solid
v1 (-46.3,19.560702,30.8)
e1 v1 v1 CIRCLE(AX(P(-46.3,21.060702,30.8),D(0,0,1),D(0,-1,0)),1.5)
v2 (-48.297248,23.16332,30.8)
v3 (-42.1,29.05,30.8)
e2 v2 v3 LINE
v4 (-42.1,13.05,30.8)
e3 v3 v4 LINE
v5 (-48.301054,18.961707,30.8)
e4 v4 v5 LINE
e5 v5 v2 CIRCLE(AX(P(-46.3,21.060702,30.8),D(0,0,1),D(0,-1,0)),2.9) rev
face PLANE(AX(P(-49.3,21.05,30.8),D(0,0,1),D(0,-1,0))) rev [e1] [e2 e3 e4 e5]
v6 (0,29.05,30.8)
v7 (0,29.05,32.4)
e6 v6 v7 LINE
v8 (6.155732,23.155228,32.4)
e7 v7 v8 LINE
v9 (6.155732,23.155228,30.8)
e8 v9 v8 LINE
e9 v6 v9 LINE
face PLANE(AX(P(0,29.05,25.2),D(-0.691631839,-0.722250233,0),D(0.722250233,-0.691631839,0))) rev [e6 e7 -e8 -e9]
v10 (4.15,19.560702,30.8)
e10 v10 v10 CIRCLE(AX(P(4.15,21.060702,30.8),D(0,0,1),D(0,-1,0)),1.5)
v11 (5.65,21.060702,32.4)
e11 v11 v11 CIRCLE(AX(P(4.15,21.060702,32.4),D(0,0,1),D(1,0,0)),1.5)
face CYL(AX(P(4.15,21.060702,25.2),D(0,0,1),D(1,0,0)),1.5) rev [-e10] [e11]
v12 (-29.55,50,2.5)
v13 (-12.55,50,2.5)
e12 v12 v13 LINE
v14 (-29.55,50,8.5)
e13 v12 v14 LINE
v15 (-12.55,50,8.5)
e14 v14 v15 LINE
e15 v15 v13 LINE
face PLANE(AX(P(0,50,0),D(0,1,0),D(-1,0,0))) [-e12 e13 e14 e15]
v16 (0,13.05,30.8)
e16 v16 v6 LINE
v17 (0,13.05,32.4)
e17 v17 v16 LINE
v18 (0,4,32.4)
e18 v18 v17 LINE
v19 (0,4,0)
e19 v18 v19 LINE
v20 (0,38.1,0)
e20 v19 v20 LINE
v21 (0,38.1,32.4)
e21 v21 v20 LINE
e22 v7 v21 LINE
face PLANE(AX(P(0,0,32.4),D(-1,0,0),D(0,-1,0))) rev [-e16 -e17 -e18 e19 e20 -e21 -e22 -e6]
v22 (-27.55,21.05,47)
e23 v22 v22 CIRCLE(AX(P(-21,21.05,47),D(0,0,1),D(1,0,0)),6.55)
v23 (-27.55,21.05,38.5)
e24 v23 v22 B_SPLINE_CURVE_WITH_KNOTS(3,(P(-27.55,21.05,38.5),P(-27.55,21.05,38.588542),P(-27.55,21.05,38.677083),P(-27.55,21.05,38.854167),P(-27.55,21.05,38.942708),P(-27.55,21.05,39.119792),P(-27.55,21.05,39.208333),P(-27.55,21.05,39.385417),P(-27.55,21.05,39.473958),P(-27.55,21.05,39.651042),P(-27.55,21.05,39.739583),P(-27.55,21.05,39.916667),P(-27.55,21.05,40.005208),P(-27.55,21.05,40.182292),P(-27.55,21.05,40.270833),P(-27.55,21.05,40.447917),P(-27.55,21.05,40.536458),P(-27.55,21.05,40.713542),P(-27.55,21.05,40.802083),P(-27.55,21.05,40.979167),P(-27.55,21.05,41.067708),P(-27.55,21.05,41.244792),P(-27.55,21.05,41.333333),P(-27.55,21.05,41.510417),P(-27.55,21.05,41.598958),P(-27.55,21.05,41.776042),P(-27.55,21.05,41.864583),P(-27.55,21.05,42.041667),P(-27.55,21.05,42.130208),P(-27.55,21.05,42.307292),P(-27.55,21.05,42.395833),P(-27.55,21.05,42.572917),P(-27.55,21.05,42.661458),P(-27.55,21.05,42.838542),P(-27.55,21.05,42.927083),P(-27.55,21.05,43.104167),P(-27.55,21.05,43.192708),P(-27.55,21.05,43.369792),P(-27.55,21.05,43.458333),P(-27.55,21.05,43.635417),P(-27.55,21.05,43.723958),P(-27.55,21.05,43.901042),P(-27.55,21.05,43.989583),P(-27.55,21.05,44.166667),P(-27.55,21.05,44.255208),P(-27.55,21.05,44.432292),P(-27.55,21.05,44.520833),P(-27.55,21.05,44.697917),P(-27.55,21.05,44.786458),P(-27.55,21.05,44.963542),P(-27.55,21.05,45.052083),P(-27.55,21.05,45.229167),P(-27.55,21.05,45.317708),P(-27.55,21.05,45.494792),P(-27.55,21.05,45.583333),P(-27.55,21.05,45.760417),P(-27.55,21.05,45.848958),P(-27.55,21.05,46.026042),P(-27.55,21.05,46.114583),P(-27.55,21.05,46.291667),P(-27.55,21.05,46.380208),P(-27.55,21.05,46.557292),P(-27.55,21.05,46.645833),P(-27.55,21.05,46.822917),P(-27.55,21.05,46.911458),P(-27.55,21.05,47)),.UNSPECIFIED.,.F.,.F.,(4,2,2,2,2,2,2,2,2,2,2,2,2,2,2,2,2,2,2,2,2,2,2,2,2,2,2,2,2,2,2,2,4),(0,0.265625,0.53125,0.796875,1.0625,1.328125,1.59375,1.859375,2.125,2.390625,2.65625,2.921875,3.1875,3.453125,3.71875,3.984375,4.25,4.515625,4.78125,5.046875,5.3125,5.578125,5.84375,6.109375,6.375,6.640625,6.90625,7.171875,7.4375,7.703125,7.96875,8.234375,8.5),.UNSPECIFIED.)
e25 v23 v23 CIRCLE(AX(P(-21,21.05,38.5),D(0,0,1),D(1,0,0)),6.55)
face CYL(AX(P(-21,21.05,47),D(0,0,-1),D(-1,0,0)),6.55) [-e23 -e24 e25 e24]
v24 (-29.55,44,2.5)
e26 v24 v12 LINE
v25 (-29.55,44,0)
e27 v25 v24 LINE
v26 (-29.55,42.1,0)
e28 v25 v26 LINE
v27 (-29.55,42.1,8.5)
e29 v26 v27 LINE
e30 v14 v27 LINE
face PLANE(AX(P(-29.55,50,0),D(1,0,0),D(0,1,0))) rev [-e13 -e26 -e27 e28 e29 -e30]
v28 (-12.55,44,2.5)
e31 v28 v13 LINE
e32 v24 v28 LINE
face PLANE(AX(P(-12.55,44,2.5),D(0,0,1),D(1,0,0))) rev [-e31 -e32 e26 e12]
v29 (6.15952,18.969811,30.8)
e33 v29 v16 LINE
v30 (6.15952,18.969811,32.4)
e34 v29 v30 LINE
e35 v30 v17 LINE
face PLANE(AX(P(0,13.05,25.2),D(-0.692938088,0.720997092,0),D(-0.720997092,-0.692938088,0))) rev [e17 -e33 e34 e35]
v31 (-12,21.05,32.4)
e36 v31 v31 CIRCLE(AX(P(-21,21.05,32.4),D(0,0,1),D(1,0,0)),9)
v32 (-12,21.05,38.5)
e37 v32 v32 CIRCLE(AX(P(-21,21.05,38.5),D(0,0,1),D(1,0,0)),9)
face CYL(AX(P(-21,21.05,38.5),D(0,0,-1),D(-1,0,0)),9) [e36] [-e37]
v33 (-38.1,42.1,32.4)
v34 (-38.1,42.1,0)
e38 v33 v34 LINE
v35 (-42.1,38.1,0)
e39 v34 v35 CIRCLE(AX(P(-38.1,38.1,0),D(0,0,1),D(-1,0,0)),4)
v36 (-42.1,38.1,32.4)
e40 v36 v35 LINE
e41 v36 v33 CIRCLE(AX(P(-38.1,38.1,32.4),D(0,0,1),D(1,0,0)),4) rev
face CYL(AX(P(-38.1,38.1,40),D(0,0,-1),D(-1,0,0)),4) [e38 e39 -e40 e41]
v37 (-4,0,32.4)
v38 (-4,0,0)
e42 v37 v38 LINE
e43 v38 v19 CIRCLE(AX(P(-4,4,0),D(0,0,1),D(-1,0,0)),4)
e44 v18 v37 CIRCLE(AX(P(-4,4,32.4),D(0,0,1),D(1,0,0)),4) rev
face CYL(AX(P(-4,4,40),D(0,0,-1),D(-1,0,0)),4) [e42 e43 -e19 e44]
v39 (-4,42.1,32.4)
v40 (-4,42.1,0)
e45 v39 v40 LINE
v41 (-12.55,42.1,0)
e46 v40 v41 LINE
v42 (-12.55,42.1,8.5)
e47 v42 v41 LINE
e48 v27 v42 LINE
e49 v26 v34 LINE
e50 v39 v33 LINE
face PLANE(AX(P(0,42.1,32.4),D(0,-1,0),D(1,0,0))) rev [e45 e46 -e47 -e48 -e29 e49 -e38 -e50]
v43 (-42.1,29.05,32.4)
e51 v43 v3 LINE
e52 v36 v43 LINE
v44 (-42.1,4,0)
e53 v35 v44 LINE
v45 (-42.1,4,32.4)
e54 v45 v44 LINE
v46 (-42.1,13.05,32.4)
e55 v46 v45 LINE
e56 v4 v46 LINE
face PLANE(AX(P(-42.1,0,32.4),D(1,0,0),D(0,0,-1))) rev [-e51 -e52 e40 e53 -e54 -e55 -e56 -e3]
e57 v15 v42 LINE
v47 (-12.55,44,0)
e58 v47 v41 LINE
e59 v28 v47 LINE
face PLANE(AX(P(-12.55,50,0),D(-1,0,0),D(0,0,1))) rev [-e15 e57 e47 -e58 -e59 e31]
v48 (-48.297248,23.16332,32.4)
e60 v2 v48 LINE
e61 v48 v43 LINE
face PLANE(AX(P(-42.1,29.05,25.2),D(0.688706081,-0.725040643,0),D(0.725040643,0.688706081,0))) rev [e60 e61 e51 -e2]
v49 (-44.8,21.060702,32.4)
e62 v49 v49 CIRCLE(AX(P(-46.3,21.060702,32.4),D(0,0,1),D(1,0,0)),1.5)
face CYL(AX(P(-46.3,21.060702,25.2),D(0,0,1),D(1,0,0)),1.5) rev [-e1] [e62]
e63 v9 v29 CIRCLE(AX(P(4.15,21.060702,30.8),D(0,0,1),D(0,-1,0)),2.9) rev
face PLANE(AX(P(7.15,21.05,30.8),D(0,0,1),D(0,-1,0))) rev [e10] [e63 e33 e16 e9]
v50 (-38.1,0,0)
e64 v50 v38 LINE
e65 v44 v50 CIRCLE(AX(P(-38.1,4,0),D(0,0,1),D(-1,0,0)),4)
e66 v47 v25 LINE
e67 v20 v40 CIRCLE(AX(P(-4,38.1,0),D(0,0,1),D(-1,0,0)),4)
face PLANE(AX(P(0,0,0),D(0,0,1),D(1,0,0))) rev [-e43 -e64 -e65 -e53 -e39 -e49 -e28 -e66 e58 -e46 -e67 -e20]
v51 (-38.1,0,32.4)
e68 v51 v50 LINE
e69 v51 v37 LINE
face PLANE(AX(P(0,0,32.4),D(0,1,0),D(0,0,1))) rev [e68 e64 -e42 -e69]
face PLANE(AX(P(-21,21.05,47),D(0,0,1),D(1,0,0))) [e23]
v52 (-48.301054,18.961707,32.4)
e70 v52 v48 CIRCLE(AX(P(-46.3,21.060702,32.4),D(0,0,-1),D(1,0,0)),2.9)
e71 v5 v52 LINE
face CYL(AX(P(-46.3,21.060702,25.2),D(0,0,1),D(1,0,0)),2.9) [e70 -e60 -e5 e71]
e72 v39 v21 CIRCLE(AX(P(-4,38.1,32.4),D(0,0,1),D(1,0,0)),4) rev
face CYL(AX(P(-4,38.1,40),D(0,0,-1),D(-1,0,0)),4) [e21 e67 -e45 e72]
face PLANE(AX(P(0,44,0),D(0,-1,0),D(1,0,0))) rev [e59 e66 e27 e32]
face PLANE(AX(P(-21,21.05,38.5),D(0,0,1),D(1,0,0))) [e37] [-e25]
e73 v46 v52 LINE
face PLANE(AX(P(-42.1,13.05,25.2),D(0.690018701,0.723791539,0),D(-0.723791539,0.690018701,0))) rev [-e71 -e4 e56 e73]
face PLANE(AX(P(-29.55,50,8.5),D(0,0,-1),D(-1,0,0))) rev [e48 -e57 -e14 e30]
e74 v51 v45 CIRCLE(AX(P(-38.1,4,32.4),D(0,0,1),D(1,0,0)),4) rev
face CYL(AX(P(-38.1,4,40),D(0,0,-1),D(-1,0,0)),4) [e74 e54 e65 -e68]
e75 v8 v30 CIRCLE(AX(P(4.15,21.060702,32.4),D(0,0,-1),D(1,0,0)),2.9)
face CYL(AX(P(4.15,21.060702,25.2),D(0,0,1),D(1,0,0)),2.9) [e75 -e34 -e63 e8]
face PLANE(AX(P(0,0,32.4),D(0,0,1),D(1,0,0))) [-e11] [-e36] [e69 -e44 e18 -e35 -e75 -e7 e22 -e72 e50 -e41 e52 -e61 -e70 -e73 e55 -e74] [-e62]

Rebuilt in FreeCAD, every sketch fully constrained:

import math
import FreeCAD as App
import Part
import Sketcher

doc = App.newDocument("Part")
body = doc.addObject("PartDesign::Body", "Body")

# Sketch on XY plane
sketch1 = body.newObject("Sketcher::SketchObject", "Sketch")
sketch1.AttachmentSupport = (doc.getObject("XY_Plane"), [""])
sketch1.MapMode = "FlatFace"
sketch1.addGeometry([
    Part.LineSegment(App.Vector(-42.1, 42.1, 0), App.Vector(-42.1, 0, 0)),
    Part.LineSegment(App.Vector(-42.1, 0, 0), App.Vector(0, 0, 0)),
    Part.LineSegment(App.Vector(0, 0, 0), App.Vector(0, 42.1, 0)),
    Part.LineSegment(App.Vector(0, 42.1, 0), App.Vector(-42.1, 42.1, 0)),
], False)
sketch1.addConstraint([
    Sketcher.Constraint("Coincident", 0, 2, 1, 1),
    Sketcher.Constraint("Coincident", 1, 2, 2, 1),
    Sketcher.Constraint("Coincident", 2, 2, 3, 1),
    Sketcher.Constraint("Coincident", 3, 2, 0, 1),
    Sketcher.Constraint("Vertical", 0),
    Sketcher.Constraint("Horizontal", 1),
    Sketcher.Constraint("Vertical", 2),
    Sketcher.Constraint("Horizontal", 3),
    Sketcher.Constraint("Coincident", 1, 2, -1, 1),
    Sketcher.Constraint("Equal", 3, 0),
    Sketcher.Constraint("DistanceX", 1, 1, 1, 2, 42.1),
])
pad1 = body.newObject("PartDesign::Pad", "Pad")
pad1.Profile = sketch1
pad1.Length = 32.4

# Sketch on XZ plane
sketch2 = body.newObject("Sketcher::SketchObject", "Sketch001")
sketch2.AttachmentSupport = (doc.getObject("XZ_Plane"), [""])
sketch2.MapMode = "FlatFace"
sketch2.AttachmentOffset = App.Placement(App.Vector(0, 0, -42.1), App.Rotation())
sketch2.addGeometry([
    Part.LineSegment(App.Vector(-29.55, 0, 0), App.Vector(-29.55, 8.5, 0)),
    Part.LineSegment(App.Vector(-29.55, 8.5, 0), App.Vector(-12.55, 8.5, 0)),
    Part.LineSegment(App.Vector(-12.55, 8.5, 0), App.Vector(-12.55, 0, 0)),
    Part.LineSegment(App.Vector(-12.55, 0, 0), App.Vector(-29.55, 0, 0)),
], False)
sketch2.addConstraint([
    Sketcher.Constraint("Coincident", 0, 2, 1, 1),
    Sketcher.Constraint("Coincident", 1, 2, 2, 1),
    Sketcher.Constraint("Coincident", 2, 2, 3, 1),
    Sketcher.Constraint("Coincident", 3, 2, 0, 1),
    Sketcher.Constraint("Vertical", 0),
    Sketcher.Constraint("Horizontal", 1),
    Sketcher.Constraint("Vertical", 2),
    Sketcher.Constraint("Horizontal", 3),
    Sketcher.Constraint("PointOnObject", 2, 2, -1),
    Sketcher.Constraint("DistanceX", 1, 1, 1, 2, 17.0),
    Sketcher.Constraint("DistanceY", 0, 1, 0, 2, 8.5),
    Sketcher.Constraint("DistanceX", 0, 2, -1, 1, 29.55),
])
pad2 = body.newObject("PartDesign::Pad", "Pad001")
pad2.Profile = sketch2
pad2.Length = 7.9
pad2.Reversed = True

# Sketch on YZ plane
sketch3 = body.newObject("Sketcher::SketchObject", "Sketch002")
sketch3.AttachmentSupport = (doc.getObject("YZ_Plane"), [""])
sketch3.MapMode = "FlatFace"
sketch3.addGeometry([
    Part.LineSegment(App.Vector(29.05, 32.4, 0), App.Vector(13.05, 32.4, 0)),
    Part.LineSegment(App.Vector(13.05, 32.4, 0), App.Vector(13.05, 30.8, 0)),
    Part.LineSegment(App.Vector(13.05, 30.8, 0), App.Vector(29.05, 30.8, 0)),
    Part.LineSegment(App.Vector(29.05, 30.8, 0), App.Vector(29.05, 32.4, 0)),
], False)
sketch3.addConstraint([
    Sketcher.Constraint("Coincident", 0, 2, 1, 1),
    Sketcher.Constraint("Coincident", 1, 2, 2, 1),
    Sketcher.Constraint("Coincident", 2, 2, 3, 1),
    Sketcher.Constraint("Coincident", 3, 2, 0, 1),
    Sketcher.Constraint("Horizontal", 0),
    Sketcher.Constraint("Vertical", 1),
    Sketcher.Constraint("Horizontal", 2),
    Sketcher.Constraint("Vertical", 3),
    Sketcher.Constraint("DistanceX", 0, 2, 0, 1, 16.0),
    Sketcher.Constraint("DistanceY", 1, 2, 1, 1, 1.6),
    Sketcher.Constraint("DistanceY", -1, 1, 0, 2, 32.4),
    Sketcher.Constraint("DistanceX", -1, 1, 0, 2, 13.05),
])
pad3 = body.newObject("PartDesign::Pad", "Pad002")
pad3.Profile = sketch3
pad3.Length = 7.15

# Sketch on YZ plane
sketch4 = body.newObject("Sketcher::SketchObject", "Sketch003")
sketch4.AttachmentSupport = (doc.getObject("YZ_Plane"), [""])
sketch4.MapMode = "FlatFace"
sketch4.AttachmentOffset = App.Placement(App.Vector(0, 0, -42.1), App.Rotation())
sketch4.addGeometry([
    Part.LineSegment(App.Vector(29.05, 32.4, 0), App.Vector(29.05, 30.8, 0)),
    Part.LineSegment(App.Vector(29.05, 30.8, 0), App.Vector(13.05, 30.8, 0)),
    Part.LineSegment(App.Vector(13.05, 30.8, 0), App.Vector(13.05, 32.4, 0)),
    Part.LineSegment(App.Vector(13.05, 32.4, 0), App.Vector(29.05, 32.4, 0)),
], False)
sketch4.addConstraint([
    Sketcher.Constraint("Coincident", 0, 2, 1, 1),
    Sketcher.Constraint("Coincident", 1, 2, 2, 1),
    Sketcher.Constraint("Coincident", 2, 2, 3, 1),
    Sketcher.Constraint("Coincident", 3, 2, 0, 1),
    Sketcher.Constraint("Vertical", 0),
    Sketcher.Constraint("Horizontal", 1),
    Sketcher.Constraint("Vertical", 2),
    Sketcher.Constraint("Horizontal", 3),
    Sketcher.Constraint("DistanceX", 1, 2, 1, 1, 16.0),
    Sketcher.Constraint("DistanceY", 0, 2, 0, 1, 1.6),
    Sketcher.Constraint("DistanceY", -1, 1, 0, 2, 30.8),
    Sketcher.Constraint("DistanceX", -1, 1, 0, 2, 29.05),
])
pad4 = body.newObject("PartDesign::Pad", "Pad003")
pad4.Profile = sketch4
pad4.Length = 7.2
pad4.Reversed = True

# Sketch on XY plane
sketch5 = body.newObject("Sketcher::SketchObject", "Sketch004")
sketch5.AttachmentSupport = (doc.getObject("XY_Plane"), [""])
sketch5.MapMode = "FlatFace"
sketch5.AttachmentOffset = App.Placement(App.Vector(0, 0, 32.4), App.Rotation())
sketch5.addGeometry([
    Part.Circle(App.Vector(-46.3, 21.060702, 0), App.Vector(0, 0, 1), 1.5),
    Part.Circle(App.Vector(4.15, 21.060702, 0), App.Vector(0, 0, 1), 1.5),
], False)
sketch5.addConstraint([
    Sketcher.Constraint("Equal", 0, 1),
    Sketcher.Constraint("Horizontal", 0, 3, 1, 3),
    Sketcher.Constraint("Diameter", 0, 3.0),
    Sketcher.Constraint("DistanceX", 0, 3, -1, 1, 46.3),
    Sketcher.Constraint("DistanceX", -1, 1, 1, 3, 4.15),
    Sketcher.Constraint("DistanceY", -1, 1, 0, 3, 21.060702),
])
pocket1 = body.newObject("PartDesign::Pocket", "Pocket")
pocket1.Profile = sketch5
pocket1.Length = 7.2

# Sketch on XY plane
sketch6 = body.newObject("Sketcher::SketchObject", "Sketch005")
sketch6.AttachmentSupport = (doc.getObject("XY_Plane"), [""])
sketch6.MapMode = "FlatFace"
sketch6.AttachmentOffset = App.Placement(App.Vector(0, 0, 32.4), App.Rotation())
sketch6.addGeometry([
    Part.LineSegment(App.Vector(-48.297248, 23.16332, 0), App.Vector(-42.1, 29.05, 0)),  # 0
    Part.LineSegment(App.Vector(-42.1, 29.05, 0), App.Vector(-49.3, 29.05, 0)),  # 1
    Part.LineSegment(App.Vector(-49.3, 29.05, 0), App.Vector(-49.3, 13.05, 0)),  # 2
    Part.LineSegment(App.Vector(-49.3, 13.05, 0), App.Vector(-42.1, 13.05, 0)),  # 3
    Part.LineSegment(App.Vector(-42.1, 13.05, 0), App.Vector(-48.301054, 18.961707, 0)),  # 4
    Part.ArcOfCircle(Part.Circle(App.Vector(-46.3, 21.060702, 0), App.Vector(0, 0, 1), 2.9), math.radians(133.527771), math.radians(226.368411)),  # 5
    Part.LineSegment(App.Vector(0, 29.05, 0), App.Vector(6.155732, 23.155228, 0)),  # 6
    Part.ArcOfCircle(Part.Circle(App.Vector(4.15, 21.060702, 0), App.Vector(0, 0, 1), 2.9), math.radians(-46.136864), math.radians(46.240578)),  # 7
    Part.LineSegment(App.Vector(6.15952, 18.969811, 0), App.Vector(0, 13.05, 0)),  # 8
    Part.LineSegment(App.Vector(0, 13.05, 0), App.Vector(7.15, 13.05, 0)),  # 9
    Part.LineSegment(App.Vector(7.15, 13.05, 0), App.Vector(7.15, 29.05, 0)),  # 10
    Part.LineSegment(App.Vector(7.15, 29.05, 0), App.Vector(0, 29.05, 0)),  # 11
], False)
sketch6.addConstraint([
    Sketcher.Constraint("Coincident", 0, 2, 1, 1),
    Sketcher.Constraint("Coincident", 1, 2, 2, 1),
    Sketcher.Constraint("Coincident", 2, 2, 3, 1),
    Sketcher.Constraint("Coincident", 3, 2, 4, 1),
    Sketcher.Constraint("Tangent", 4, 2, 5, 2),
    Sketcher.Constraint("Tangent", 5, 1, 0, 1),
    Sketcher.Constraint("Tangent", 6, 2, 7, 2),
    Sketcher.Constraint("Tangent", 7, 1, 8, 1),
    Sketcher.Constraint("Coincident", 8, 2, 9, 1),
    Sketcher.Constraint("Coincident", 9, 2, 10, 1),
    Sketcher.Constraint("Coincident", 10, 2, 11, 1),
    Sketcher.Constraint("Coincident", 11, 2, 6, 1),
    Sketcher.Constraint("Horizontal", 1),
    Sketcher.Constraint("Vertical", 2),
    Sketcher.Constraint("Horizontal", 3),
    Sketcher.Constraint("Horizontal", 9),
    Sketcher.Constraint("Vertical", 10),
    Sketcher.Constraint("Horizontal", 11),
    Sketcher.Constraint("Equal", 5, 7),
    Sketcher.Constraint("PointOnObject", 8, 2, -2),
    Sketcher.Constraint("PointOnObject", 11, 2, -2),
    Sketcher.Constraint("Horizontal", 5, 3, 7, 3),
    Sketcher.Constraint("Horizontal", 3, 2, 8, 2),
    Sketcher.Constraint("Horizontal", 1, 2, 10, 2),
    Sketcher.Constraint("Vertical", 0, 2, 3, 2),
    Sketcher.Constraint("Radius", 5, 2.9),
    Sketcher.Constraint("DistanceY", 2, 2, 2, 1, 16.0),
    Sketcher.Constraint("DistanceX", 1, 2, 1, 1, 7.2),
    Sketcher.Constraint("DistanceX", 1, 2, 5, 3, 3.0),
    Sketcher.Constraint("DistanceX", 7, 3, 9, 2, 3.0),
    Sketcher.Constraint("DistanceX", 9, 1, 9, 2, 7.15),
    Sketcher.Constraint("DistanceX", 5, 3, -1, 1, 46.3),
    Sketcher.Constraint("DistanceY", -1, 1, 0, 2, 29.05),
    Sketcher.Constraint("Distance", 0, 8.547449),
])
pocket2 = body.newObject("PartDesign::Pocket", "Pocket001")
pocket2.Profile = sketch6
pocket2.Length = 7.2

# Sketch on XY plane
sketch7 = body.newObject("Sketcher::SketchObject", "Sketch006")
sketch7.AttachmentSupport = (doc.getObject("XY_Plane"), [""])
sketch7.MapMode = "FlatFace"
sketch7.AttachmentOffset = App.Placement(App.Vector(0, 0, 32.4), App.Rotation())
sketch7.addGeometry(Part.Circle(App.Vector(-21, 21.05, 0), App.Vector(0, 0, 1), 6.55), False)
sketch7.addConstraint([
    Sketcher.Constraint("Diameter", 0, 13.1),
    Sketcher.Constraint("DistanceX", 0, 3, -1, 1, 21.0),
    Sketcher.Constraint("DistanceY", -1, 1, 0, 3, 21.05),
])
pad5 = body.newObject("PartDesign::Pad", "Pad004")
pad5.Profile = sketch7
pad5.Length = 14.6

# Sketch on XY plane
sketch8 = body.newObject("Sketcher::SketchObject", "Sketch007")
sketch8.AttachmentSupport = (doc.getObject("XY_Plane"), [""])
sketch8.MapMode = "FlatFace"
sketch8.AttachmentOffset = App.Placement(App.Vector(0, 0, 32.4), App.Rotation())
sketch8.addGeometry(Part.Circle(App.Vector(-21, 21.05, 0), App.Vector(0, 0, 1), 9), False)
sketch8.addConstraint([
    Sketcher.Constraint("Diameter", 0, 18.0),
    Sketcher.Constraint("DistanceX", 0, 3, -1, 1, 21.0),
    Sketcher.Constraint("DistanceY", -1, 1, 0, 3, 21.05),
])
pad6 = body.newObject("PartDesign::Pad", "Pad005")
pad6.Profile = sketch8
pad6.Length = 6.1

# Sketch on XZ plane
sketch9 = body.newObject("Sketcher::SketchObject", "Sketch008")
sketch9.AttachmentSupport = (doc.getObject("XZ_Plane"), [""])
sketch9.MapMode = "FlatFace"
sketch9.AttachmentOffset = App.Placement(App.Vector(0, 0, -50), App.Rotation())
sketch9.addGeometry([
    Part.LineSegment(App.Vector(-29.55, 0, 0), App.Vector(-29.55, 2.5, 0)),
    Part.LineSegment(App.Vector(-29.55, 2.5, 0), App.Vector(-12.55, 2.5, 0)),
    Part.LineSegment(App.Vector(-12.55, 2.5, 0), App.Vector(-12.55, 0, 0)),
    Part.LineSegment(App.Vector(-12.55, 0, 0), App.Vector(-29.55, 0, 0)),
], False)
sketch9.addConstraint([
    Sketcher.Constraint("Coincident", 0, 2, 1, 1),
    Sketcher.Constraint("Coincident", 1, 2, 2, 1),
    Sketcher.Constraint("Coincident", 2, 2, 3, 1),
    Sketcher.Constraint("Coincident", 3, 2, 0, 1),
    Sketcher.Constraint("Vertical", 0),
    Sketcher.Constraint("Horizontal", 1),
    Sketcher.Constraint("Vertical", 2),
    Sketcher.Constraint("Horizontal", 3),
    Sketcher.Constraint("PointOnObject", 2, 2, -1),
    Sketcher.Constraint("DistanceX", 1, 1, 1, 2, 17.0),
    Sketcher.Constraint("DistanceY", 0, 1, 0, 2, 2.5),
    Sketcher.Constraint("DistanceX", 0, 2, -1, 1, 29.55),
])
pocket3 = body.newObject("PartDesign::Pocket", "Pocket002")
pocket3.Profile = sketch9
pocket3.Length = 6
pocket3.Reversed = True

# Sketch on XY plane
sketch10 = body.newObject("Sketcher::SketchObject", "Sketch009")
sketch10.AttachmentSupport = (doc.getObject("XY_Plane"), [""])
sketch10.MapMode = "FlatFace"
sketch10.addGeometry([
    Part.LineSegment(App.Vector(0, 4, 0), App.Vector(0, 0, 0)),  # 0
    Part.LineSegment(App.Vector(0, 0, 0), App.Vector(-4, 0, 0)),  # 1
    Part.ArcOfCircle(Part.Circle(App.Vector(-4, 4, 0), App.Vector(0, 0, 1), 4), math.radians(-90), math.radians(0)),  # 2
    Part.LineSegment(App.Vector(-38.1, 0, 0), App.Vector(-42.1, 0, 0)),  # 3
    Part.LineSegment(App.Vector(-42.1, 0, 0), App.Vector(-42.1, 4, 0)),  # 4
    Part.ArcOfCircle(Part.Circle(App.Vector(-38.1, 4, 0), App.Vector(0, 0, 1), 4), math.radians(180), math.radians(270)),  # 5
    Part.LineSegment(App.Vector(-42.1, 42.1, 0), App.Vector(-38.1, 42.1, 0)),  # 6
    Part.ArcOfCircle(Part.Circle(App.Vector(-38.1, 38.1, 0), App.Vector(0, 0, 1), 4), math.radians(90), math.radians(180)),  # 7
    Part.LineSegment(App.Vector(-42.1, 38.1, 0), App.Vector(-42.1, 42.1, 0)),  # 8
    Part.LineSegment(App.Vector(-4, 42.1, 0), App.Vector(0, 42.1, 0)),  # 9
    Part.LineSegment(App.Vector(0, 42.1, 0), App.Vector(0, 38.1, 0)),  # 10
    Part.ArcOfCircle(Part.Circle(App.Vector(-4, 38.1, 0), App.Vector(0, 0, 1), 4), math.radians(0), math.radians(90)),  # 11
], False)
sketch10.addConstraint([
    Sketcher.Constraint("Coincident", 0, 2, 1, 1),
    Sketcher.Constraint("Tangent", 1, 2, 2, 1),
    Sketcher.Constraint("Tangent", 2, 2, 0, 1),
    Sketcher.Constraint("Coincident", 3, 2, 4, 1),
    Sketcher.Constraint("Tangent", 4, 2, 5, 1),
    Sketcher.Constraint("Tangent", 5, 2, 3, 1),
    Sketcher.Constraint("Tangent", 6, 2, 7, 1),
    Sketcher.Constraint("Tangent", 7, 2, 8, 1),
    Sketcher.Constraint("Coincident", 8, 2, 6, 1),
    Sketcher.Constraint("Coincident", 9, 2, 10, 1),
    Sketcher.Constraint("Tangent", 10, 2, 11, 1),
    Sketcher.Constraint("Tangent", 11, 2, 9, 1),
    Sketcher.Constraint("Vertical", 0),
    Sketcher.Constraint("Horizontal", 1),
    Sketcher.Constraint("Horizontal", 3),
    Sketcher.Constraint("Vertical", 4),
    Sketcher.Constraint("Horizontal", 6),
    Sketcher.Constraint("Vertical", 8),
    Sketcher.Constraint("Horizontal", 9),
    Sketcher.Constraint("Vertical", 10),
    Sketcher.Constraint("Coincident", 0, 2, -1, 1),
    Sketcher.Constraint("Equal", 2, 5),
    Sketcher.Constraint("Equal", 5, 7),
    Sketcher.Constraint("Equal", 7, 11),
    Sketcher.Constraint("PointOnObject", 3, 2, -1),
    Sketcher.Constraint("PointOnObject", 9, 2, -2),
    Sketcher.Constraint("Horizontal", 7, 3, 11, 3),
    Sketcher.Constraint("Vertical", 5, 3, 7, 3),
    Sketcher.Constraint("Radius", 2, 4.0),
    Sketcher.Constraint("DistanceX", 5, 3, -1, 1, 38.1),
    Sketcher.Constraint("DistanceY", -1, 1, 7, 3, 38.1),
])
pocket4 = body.newObject("PartDesign::Pocket", "Pocket003")
pocket4.Profile = sketch10
pocket4.Length = 40
pocket4.Reversed = True

doc.recompute()
